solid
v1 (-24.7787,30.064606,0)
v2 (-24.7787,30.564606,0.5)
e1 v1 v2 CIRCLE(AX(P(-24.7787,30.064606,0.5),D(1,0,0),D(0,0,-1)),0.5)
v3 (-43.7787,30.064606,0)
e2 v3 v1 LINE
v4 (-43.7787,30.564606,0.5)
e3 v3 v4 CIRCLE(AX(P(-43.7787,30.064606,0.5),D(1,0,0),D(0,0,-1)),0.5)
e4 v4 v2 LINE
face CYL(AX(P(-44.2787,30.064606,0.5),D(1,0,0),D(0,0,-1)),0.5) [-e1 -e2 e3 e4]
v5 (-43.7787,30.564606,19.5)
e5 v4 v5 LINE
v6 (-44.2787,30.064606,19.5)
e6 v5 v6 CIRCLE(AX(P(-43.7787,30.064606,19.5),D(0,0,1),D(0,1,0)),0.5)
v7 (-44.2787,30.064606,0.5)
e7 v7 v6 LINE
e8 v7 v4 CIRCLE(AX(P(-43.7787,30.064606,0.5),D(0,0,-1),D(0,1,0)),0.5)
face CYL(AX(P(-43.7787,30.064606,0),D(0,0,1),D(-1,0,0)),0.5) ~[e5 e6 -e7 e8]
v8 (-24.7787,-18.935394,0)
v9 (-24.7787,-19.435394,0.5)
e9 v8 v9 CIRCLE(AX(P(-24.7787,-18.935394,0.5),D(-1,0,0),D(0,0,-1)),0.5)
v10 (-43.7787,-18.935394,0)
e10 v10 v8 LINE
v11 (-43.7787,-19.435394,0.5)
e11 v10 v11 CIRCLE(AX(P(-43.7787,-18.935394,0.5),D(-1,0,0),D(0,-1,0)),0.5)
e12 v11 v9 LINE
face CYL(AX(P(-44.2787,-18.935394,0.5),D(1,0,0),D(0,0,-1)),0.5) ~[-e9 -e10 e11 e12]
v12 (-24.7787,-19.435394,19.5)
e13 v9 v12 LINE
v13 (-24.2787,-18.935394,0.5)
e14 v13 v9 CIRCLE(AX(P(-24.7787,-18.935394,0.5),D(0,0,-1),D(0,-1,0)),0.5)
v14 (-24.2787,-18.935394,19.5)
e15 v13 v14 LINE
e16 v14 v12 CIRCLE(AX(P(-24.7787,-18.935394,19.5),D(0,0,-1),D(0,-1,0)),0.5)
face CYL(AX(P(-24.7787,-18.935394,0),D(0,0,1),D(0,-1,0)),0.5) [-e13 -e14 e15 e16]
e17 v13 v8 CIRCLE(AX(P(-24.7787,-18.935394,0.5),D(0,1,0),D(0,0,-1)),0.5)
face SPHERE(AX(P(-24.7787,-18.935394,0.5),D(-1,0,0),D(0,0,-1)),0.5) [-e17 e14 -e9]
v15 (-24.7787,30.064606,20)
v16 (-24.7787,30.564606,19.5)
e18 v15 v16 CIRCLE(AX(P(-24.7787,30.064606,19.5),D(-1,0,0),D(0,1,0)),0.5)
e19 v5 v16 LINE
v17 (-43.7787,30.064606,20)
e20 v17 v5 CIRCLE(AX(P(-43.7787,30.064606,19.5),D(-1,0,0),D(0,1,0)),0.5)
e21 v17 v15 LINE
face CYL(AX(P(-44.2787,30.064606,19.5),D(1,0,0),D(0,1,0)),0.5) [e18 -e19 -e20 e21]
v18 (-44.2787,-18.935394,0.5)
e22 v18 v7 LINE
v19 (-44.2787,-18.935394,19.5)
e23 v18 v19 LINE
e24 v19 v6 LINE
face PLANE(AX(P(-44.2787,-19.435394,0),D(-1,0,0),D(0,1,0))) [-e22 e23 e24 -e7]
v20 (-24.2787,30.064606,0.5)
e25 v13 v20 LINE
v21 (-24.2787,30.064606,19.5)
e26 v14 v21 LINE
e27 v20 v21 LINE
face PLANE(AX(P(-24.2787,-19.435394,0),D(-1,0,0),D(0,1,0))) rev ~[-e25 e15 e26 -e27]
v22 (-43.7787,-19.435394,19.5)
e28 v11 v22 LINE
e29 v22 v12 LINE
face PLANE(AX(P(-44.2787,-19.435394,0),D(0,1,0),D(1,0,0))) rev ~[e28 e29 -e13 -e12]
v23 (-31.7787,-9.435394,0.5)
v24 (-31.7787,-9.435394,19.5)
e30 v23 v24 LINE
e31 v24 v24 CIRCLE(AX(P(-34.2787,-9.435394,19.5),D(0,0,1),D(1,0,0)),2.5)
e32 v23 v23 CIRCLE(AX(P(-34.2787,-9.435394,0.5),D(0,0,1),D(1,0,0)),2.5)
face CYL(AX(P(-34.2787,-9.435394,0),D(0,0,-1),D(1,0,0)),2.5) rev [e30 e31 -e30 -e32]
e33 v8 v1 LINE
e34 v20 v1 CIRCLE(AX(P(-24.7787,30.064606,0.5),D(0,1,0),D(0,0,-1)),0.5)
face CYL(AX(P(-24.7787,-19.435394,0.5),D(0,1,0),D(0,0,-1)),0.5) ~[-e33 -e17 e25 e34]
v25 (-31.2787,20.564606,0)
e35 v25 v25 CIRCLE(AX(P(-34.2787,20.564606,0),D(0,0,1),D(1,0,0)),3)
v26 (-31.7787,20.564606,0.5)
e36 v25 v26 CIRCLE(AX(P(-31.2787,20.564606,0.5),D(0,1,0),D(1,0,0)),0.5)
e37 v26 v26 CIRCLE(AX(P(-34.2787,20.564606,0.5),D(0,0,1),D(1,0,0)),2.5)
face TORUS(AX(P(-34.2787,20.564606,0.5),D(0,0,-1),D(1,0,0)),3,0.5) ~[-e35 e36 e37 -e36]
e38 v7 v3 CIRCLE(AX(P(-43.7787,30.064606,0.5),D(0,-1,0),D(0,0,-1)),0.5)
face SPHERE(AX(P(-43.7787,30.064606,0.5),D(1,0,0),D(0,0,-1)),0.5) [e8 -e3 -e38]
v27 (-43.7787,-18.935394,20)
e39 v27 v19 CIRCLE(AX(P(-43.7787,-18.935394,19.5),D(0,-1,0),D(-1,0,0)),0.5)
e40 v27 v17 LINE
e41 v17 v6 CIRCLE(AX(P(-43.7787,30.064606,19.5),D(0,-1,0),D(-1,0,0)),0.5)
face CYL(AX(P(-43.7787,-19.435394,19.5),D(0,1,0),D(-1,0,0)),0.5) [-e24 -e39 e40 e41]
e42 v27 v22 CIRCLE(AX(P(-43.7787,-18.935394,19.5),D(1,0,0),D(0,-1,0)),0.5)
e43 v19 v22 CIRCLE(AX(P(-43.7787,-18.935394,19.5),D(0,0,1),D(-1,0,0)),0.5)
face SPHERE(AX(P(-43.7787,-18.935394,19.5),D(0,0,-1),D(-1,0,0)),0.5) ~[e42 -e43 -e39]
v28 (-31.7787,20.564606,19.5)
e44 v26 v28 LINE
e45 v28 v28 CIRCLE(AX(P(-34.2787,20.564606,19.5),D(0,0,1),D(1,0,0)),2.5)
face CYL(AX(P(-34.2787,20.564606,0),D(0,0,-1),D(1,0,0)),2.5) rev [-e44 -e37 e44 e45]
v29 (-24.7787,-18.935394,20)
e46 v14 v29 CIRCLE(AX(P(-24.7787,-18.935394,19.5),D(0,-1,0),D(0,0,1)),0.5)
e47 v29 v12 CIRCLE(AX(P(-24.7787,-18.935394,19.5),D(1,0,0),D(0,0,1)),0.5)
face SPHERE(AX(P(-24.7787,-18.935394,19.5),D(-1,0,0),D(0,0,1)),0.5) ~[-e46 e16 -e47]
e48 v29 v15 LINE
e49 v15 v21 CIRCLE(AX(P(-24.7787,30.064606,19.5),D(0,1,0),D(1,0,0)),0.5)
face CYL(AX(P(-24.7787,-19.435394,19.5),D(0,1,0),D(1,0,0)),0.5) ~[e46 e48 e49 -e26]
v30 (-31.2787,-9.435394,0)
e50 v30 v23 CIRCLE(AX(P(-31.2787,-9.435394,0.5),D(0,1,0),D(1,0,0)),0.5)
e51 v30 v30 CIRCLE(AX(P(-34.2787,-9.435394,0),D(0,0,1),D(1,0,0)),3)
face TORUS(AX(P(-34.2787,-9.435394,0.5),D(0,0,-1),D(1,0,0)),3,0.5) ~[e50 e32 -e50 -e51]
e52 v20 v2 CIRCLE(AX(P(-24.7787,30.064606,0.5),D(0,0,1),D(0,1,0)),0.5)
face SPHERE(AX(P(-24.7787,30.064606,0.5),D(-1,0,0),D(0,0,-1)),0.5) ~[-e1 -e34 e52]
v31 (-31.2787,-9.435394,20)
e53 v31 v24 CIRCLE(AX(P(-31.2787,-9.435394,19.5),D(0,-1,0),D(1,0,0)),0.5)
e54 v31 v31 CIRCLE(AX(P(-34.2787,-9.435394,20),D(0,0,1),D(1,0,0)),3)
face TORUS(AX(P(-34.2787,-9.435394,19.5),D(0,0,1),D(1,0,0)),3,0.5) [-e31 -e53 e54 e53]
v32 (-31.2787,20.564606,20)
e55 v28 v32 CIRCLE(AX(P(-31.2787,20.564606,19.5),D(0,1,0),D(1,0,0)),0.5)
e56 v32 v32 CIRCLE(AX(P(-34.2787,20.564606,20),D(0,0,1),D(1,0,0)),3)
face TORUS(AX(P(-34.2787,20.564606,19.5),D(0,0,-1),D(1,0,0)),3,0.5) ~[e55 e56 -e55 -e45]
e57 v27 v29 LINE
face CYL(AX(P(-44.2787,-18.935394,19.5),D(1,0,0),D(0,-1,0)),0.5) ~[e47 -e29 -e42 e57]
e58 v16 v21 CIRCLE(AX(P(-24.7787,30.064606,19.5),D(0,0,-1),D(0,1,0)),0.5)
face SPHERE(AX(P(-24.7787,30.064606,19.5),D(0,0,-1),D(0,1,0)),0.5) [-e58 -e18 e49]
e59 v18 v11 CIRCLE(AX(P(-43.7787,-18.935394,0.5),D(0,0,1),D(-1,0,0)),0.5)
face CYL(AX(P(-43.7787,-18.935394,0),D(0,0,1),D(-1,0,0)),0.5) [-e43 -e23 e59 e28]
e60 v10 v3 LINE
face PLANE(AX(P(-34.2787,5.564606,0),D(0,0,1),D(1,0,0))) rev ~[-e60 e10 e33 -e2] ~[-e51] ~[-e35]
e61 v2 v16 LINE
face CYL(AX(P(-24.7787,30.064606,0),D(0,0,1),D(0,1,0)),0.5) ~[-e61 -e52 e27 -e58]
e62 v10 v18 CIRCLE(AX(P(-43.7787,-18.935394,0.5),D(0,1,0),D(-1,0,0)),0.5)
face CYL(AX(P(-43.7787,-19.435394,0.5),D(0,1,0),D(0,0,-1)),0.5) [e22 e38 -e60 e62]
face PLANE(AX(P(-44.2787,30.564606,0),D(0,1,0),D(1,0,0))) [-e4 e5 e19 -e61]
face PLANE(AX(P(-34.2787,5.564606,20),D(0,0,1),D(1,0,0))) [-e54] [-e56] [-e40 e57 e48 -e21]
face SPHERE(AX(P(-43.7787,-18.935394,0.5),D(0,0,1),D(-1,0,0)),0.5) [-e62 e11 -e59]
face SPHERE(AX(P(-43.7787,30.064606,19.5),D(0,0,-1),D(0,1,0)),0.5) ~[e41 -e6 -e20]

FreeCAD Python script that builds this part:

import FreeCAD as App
import Part
import Sketcher
from FreeCAD import Vector


def edges_at(feature, points):
    """Names of the edges that pass closest to the given points."""
    edges = feature.Shape.Edges
    near = lambda p: min(range(len(edges)), key=lambda i: edges[i].distToShape(Part.Vertex(*p))[0])
    return sorted({f"Edge{near(p) + 1}" for p in points})

doc = App.newDocument("Part")
body = doc.addObject("PartDesign::Body", "Body")

# Sketch on XY plane
sketch1 = body.newObject("Sketcher::SketchObject", "Sketch")
sketch1.AttachmentSupport = (doc.getObject("XY_Plane"), [""])
sketch1.MapMode = "FlatFace"
sketch1.addGeometry(Part.LineSegment(Vector(-44.3, 30.6, 0), Vector(-44.3, -19.4, 0)), False)
sketch1.addGeometry(Part.LineSegment(Vector(-44.3, -19.4, 0), Vector(-24.3, -19.4, 0)), False)
sketch1.addGeometry(Part.LineSegment(Vector(-24.3, -19.4, 0), Vector(-24.3, 30.6, 0)), False)
sketch1.addGeometry(Part.LineSegment(Vector(-24.3, 30.6, 0), Vector(-44.3, 30.6, 0)), False)
sketch1.addGeometry(Part.Circle(Vector(-34.3, -9.4, 0), Vector(0, 0, 1), 2.5), False)
sketch1.addGeometry(Part.Circle(Vector(-34.3, 20.6, 0), Vector(0, 0, 1), 2.5), False)
sketch1.addConstraint(Sketcher.Constraint("Coincident", 0, 2, 1, 1))
sketch1.addConstraint(Sketcher.Constraint("Coincident", 1, 2, 2, 1))
sketch1.addConstraint(Sketcher.Constraint("Coincident", 2, 2, 3, 1))
sketch1.addConstraint(Sketcher.Constraint("Coincident", 3, 2, 0, 1))
sketch1.addConstraint(Sketcher.Constraint("Vertical", 0))
sketch1.addConstraint(Sketcher.Constraint("Horizontal", 1))
sketch1.addConstraint(Sketcher.Constraint("Vertical", 2))
sketch1.addConstraint(Sketcher.Constraint("Horizontal", 3))
sketch1.addConstraint(Sketcher.Constraint("Equal", 4, 5))
sketch1.addConstraint(Sketcher.Constraint("Vertical", 4, 3, 5, 3))
sketch1.addConstraint(Sketcher.Constraint("Diameter", 4, 5.0))
sketch1.addConstraint(Sketcher.Constraint("DistanceX", 1, 1, 1, 2, 20.0))
sketch1.addConstraint(Sketcher.Constraint("DistanceY", 0, 2, 0, 1, 50.0))
sketch1.addConstraint(Sketcher.Constraint("DistanceY", 4, 3, 5, 3, 30.0))
sketch1.addConstraint(Sketcher.Constraint("DistanceX", 0, 2, 4, 3, 10.0))
sketch1.addConstraint(Sketcher.Constraint("DistanceY", 0, 2, 4, 3, 10.0))
sketch1.addConstraint(Sketcher.Constraint("DistanceX", 4, 3, -1, 1, 34.2787))
sketch1.addConstraint(Sketcher.Constraint("DistanceY", 4, 3, -1, 1, 9.435394))
pad1 = body.newObject("PartDesign::Pad", "Pad")
pad1.Profile = sketch1
pad1.Length = 20
doc.recompute()

fillet = body.newObject("PartDesign::Fillet", "Fillet")
fillet.Base = (pad1, edges_at(pad1, [(-36.779, 20.565, 20)]))
fillet.Radius = 0.5
doc.recompute()

fillet2 = body.newObject("PartDesign::Fillet", "Fillet001")
fillet2.Base = (fillet, edges_at(fillet, [(-31.779, -9.435, 10), (-36.779, -9.435, 0), (-36.779, -9.435, 20)]))
fillet2.Radius = 0.5
doc.recompute()

fillet3 = body.newObject("PartDesign::Fillet", "Fillet002")
fillet3.Base = (fillet2, edges_at(fillet2, [(-36.779, 20.565, 0)]))
fillet3.Radius = 0.5
doc.recompute()

fillet4 = body.newObject("PartDesign::Fillet", "Fillet003")
fillet4.Base = (fillet3, ["Edge1"])
fillet4.UseAllEdges = True
fillet4.Radius = 0.5

doc.recompute()
